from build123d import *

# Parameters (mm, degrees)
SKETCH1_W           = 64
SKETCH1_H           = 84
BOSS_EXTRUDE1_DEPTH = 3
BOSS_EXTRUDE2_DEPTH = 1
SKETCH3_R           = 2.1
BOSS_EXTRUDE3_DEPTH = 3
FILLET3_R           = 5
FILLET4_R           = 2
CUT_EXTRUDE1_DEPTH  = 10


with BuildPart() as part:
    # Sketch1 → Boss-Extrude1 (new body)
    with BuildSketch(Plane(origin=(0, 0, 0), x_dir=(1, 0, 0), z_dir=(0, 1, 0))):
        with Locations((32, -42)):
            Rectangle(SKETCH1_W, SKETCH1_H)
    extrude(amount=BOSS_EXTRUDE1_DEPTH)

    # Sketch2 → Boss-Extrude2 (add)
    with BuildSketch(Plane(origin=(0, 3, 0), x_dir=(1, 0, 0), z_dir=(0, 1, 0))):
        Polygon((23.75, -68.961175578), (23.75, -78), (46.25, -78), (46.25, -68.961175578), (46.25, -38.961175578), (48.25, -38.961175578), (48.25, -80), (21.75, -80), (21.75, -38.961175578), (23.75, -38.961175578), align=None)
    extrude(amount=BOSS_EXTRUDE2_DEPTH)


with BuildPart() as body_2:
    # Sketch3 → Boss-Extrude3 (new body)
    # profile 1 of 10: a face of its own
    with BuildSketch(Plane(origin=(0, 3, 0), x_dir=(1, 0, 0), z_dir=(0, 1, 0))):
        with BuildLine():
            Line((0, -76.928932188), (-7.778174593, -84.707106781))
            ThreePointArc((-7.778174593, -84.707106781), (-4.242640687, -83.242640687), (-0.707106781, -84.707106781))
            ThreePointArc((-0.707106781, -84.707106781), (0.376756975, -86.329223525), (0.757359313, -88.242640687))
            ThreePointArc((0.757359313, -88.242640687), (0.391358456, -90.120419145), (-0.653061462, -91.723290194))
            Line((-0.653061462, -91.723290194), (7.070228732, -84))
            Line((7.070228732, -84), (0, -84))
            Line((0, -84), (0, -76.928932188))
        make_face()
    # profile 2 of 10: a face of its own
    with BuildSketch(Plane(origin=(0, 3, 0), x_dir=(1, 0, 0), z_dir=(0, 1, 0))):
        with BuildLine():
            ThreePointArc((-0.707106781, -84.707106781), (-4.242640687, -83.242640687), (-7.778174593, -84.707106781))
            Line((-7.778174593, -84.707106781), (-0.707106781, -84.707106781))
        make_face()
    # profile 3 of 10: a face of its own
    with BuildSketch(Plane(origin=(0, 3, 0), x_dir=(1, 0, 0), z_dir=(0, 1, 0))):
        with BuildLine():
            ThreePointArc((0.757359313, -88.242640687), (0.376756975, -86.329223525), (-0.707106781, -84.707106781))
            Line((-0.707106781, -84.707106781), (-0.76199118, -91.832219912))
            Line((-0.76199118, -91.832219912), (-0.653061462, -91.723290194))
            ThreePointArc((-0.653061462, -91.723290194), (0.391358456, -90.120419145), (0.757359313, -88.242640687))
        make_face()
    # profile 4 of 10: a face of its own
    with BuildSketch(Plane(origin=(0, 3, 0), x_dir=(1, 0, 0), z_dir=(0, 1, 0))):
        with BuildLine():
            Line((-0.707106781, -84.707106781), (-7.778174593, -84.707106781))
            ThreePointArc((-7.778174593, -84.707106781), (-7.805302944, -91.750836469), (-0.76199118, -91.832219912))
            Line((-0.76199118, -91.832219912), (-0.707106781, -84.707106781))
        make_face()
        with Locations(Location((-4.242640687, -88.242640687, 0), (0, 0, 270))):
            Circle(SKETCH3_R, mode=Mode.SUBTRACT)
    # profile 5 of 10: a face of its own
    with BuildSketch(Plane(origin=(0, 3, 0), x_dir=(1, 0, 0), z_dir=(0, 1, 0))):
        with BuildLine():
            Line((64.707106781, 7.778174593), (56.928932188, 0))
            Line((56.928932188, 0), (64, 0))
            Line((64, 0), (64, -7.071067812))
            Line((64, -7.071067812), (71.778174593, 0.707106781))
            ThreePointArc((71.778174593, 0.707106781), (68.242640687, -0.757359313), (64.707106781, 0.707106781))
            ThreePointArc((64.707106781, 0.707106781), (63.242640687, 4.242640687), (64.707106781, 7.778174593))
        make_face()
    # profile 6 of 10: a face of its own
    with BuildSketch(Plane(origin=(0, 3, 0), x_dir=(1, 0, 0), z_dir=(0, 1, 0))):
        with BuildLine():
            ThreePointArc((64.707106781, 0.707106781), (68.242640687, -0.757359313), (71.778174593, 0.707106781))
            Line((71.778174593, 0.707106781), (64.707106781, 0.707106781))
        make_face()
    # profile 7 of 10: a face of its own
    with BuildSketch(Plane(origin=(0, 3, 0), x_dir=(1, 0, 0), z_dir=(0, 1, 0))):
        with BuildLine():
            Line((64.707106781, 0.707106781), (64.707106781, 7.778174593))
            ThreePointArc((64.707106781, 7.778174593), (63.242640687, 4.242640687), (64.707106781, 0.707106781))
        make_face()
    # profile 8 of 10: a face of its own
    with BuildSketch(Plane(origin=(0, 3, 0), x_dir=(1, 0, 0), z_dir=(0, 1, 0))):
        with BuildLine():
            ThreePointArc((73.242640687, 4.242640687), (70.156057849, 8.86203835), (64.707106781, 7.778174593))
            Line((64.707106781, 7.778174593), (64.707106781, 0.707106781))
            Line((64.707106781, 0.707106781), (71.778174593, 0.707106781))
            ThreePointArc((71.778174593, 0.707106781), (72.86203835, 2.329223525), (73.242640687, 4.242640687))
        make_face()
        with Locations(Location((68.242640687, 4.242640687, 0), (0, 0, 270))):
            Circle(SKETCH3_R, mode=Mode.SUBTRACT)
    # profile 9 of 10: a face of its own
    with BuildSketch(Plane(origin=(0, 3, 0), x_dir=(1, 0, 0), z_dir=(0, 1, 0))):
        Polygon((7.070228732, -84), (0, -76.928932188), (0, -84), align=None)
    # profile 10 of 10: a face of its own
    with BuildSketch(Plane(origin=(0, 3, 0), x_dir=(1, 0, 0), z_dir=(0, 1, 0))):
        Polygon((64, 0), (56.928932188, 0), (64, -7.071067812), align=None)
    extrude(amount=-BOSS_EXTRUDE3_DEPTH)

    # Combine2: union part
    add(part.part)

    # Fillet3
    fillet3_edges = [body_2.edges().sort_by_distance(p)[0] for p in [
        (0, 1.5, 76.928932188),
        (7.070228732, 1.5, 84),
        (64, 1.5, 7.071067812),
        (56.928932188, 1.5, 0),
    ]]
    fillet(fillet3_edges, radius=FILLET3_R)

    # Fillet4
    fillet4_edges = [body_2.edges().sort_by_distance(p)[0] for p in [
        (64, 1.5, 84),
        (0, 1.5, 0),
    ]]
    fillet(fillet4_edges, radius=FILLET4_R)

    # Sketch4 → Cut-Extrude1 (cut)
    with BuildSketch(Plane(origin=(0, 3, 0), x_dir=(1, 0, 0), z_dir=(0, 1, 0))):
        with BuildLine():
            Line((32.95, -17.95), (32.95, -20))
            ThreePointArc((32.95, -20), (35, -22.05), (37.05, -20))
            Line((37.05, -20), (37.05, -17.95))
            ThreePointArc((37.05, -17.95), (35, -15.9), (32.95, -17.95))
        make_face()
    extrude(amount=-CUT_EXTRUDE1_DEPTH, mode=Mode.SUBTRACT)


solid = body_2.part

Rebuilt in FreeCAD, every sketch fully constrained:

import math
import FreeCAD as App
import Part
import Sketcher
from FreeCAD import Vector
Q = App.Units.Quantity


def edges_at(feature, points):
    """Names of the edges that pass closest to the given points."""
    edges = feature.Shape.Edges
    near = lambda p: min(range(len(edges)), key=lambda i: edges[i].distToShape(Part.Vertex(*p))[0])
    return sorted({f"Edge{near(p) + 1}" for p in points})

doc = App.newDocument("Part")
body = doc.addObject("PartDesign::Body", "Body")

# Sketch on XZ plane
sketch1 = doc.addObject("Sketcher::SketchObject", "Sketch")
body.addObject(sketch1)
sketch1.AttachmentSupport = (doc.XZ_Plane, [""])
sketch1.MapMode = "FlatFace"
sketch1.addGeometry([
    Part.LineSegment(Vector(0, 0, 0), Vector(0, 84, 0)),
    Part.LineSegment(Vector(0, 84, 0), Vector(64, 84, 0)),
    Part.LineSegment(Vector(64, 84, 0), Vector(64, 0, 0)),
    Part.LineSegment(Vector(64, 0, 0), Vector(0, 0, 0)),
], False)
sketch1.addConstraint([
    Sketcher.Constraint("Coincident", 0, 2, 1, 1),
    Sketcher.Constraint("Coincident", 1, 2, 2, 1),
    Sketcher.Constraint("Coincident", 2, 2, 3, 1),
    Sketcher.Constraint("Coincident", 3, 2, 0, 1),
    Sketcher.Constraint("Vertical", 0),
    Sketcher.Constraint("Horizontal", 1),
    Sketcher.Constraint("Vertical", 2),
    Sketcher.Constraint("Horizontal", 3),
    Sketcher.Constraint("Coincident", 3, 2, -1, 1),
    Sketcher.Constraint("DistanceX", 1, 1, 1, 2, 64.0),
    Sketcher.Constraint("DistanceY", 0, 1, 0, 2, 84.0),
])
pad1 = doc.addObject("PartDesign::Pad", "Pad")
body.addObject(pad1)
pad1.Profile = sketch1
pad1.Length = 3
pad1.Reversed = True

# Sketch on XZ plane
sketch2 = doc.addObject("Sketcher::SketchObject", "Sketch001")
body.addObject(sketch2)
sketch2.AttachmentSupport = (doc.XZ_Plane, [""])
sketch2.MapMode = "FlatFace"
sketch2.AttachmentOffset = App.Placement(Vector(0, 0, -3), App.Rotation())
sketch2.addGeometry([
    Part.LineSegment(Vector(23.8, 78, 0), Vector(23.8, 39, 0)),  # 0
    Part.LineSegment(Vector(23.8, 39, 0), Vector(21.8, 39, 0)),  # 1
    Part.LineSegment(Vector(21.8, 39, 0), Vector(21.8, 80, 0)),  # 2
    Part.LineSegment(Vector(21.8, 80, 0), Vector(48.2, 80, 0)),  # 3
    Part.LineSegment(Vector(48.2, 80, 0), Vector(48.2, 39, 0)),  # 4
    Part.LineSegment(Vector(48.2, 39, 0), Vector(46.2, 39, 0)),  # 5
    Part.LineSegment(Vector(46.2, 39, 0), Vector(46.2, 78, 0)),  # 6
    Part.LineSegment(Vector(46.2, 78, 0), Vector(23.8, 78, 0)),  # 7
], False)
sketch2.addConstraint([
    Sketcher.Constraint("Coincident", 0, 2, 1, 1),
    Sketcher.Constraint("Coincident", 1, 2, 2, 1),
    Sketcher.Constraint("Coincident", 2, 2, 3, 1),
    Sketcher.Constraint("Coincident", 3, 2, 4, 1),
    Sketcher.Constraint("Coincident", 4, 2, 5, 1),
    Sketcher.Constraint("Coincident", 5, 2, 6, 1),
    Sketcher.Constraint("Coincident", 6, 2, 7, 1),
    Sketcher.Constraint("Coincident", 7, 2, 0, 1),
    Sketcher.Constraint("Vertical", 0),
    Sketcher.Constraint("Horizontal", 1),
    Sketcher.Constraint("Vertical", 2),
    Sketcher.Constraint("Horizontal", 3),
    Sketcher.Constraint("Vertical", 4),
    Sketcher.Constraint("Horizontal", 5),
    Sketcher.Constraint("Vertical", 6),
    Sketcher.Constraint("Horizontal", 7),
    Sketcher.Constraint("Horizontal", 1, 2, 4, 2),
    Sketcher.Constraint("Equal", 1, 5),
    Sketcher.Constraint("DistanceX", 1, 2, 1, 1, 2.0),
    Sketcher.Constraint("DistanceX", 3, 1, 3, 2, 26.5),
    Sketcher.Constraint("DistanceY", -1, 1, 2, 2, 80.0),
    Sketcher.Constraint("DistanceY", -1, 1, 6, 2, 78.0),
    Sketcher.Constraint("DistanceX", -1, 1, 0, 2, 23.75),
    Sketcher.Constraint("DistanceY", 0, 2, 0, 1, 39.038824),
])
pad2 = doc.addObject("PartDesign::Pad", "Pad001")
body.addObject(pad2)
pad2.Profile = sketch2
pad2.Length = 1
pad2.Reversed = True
body2 = doc.addObject("PartDesign::Body", "Body001")
body2.AllowCompound = True

# Sketch on XZ plane
sketch3 = doc.addObject("Sketcher::SketchObject", "Sketch002")
body2.addObject(sketch3)
sketch3.AttachmentSupport = (doc.getObject("XZ_Plane001"), [""])
sketch3.MapMode = "FlatFace"
sketch3.AttachmentOffset = App.Placement(Vector(0, 0, -3), App.Rotation())
sketch3.addGeometry([
    Part.LineSegment(Vector(0, 76.9, 0), Vector(-7.8, 84.7, 0)),  # 0
    Part.ArcOfCircle(Part.Circle(Vector(-4.2, 88.2, 0), Vector(0, 0, 1), 5), math.radians(46), math.radians(225)),  # 1
    Part.LineSegment(Vector(-0.8, 91.8, 0), Vector(7.1, 84, 0)),  # 2
    Part.LineSegment(Vector(7.1, 84, 0), Vector(0, 76.9, 0)),  # 3
    Part.Circle(Vector(-4.2, 88.2, 0), Vector(0, 0, 1), 2.1),  # 4
    Part.LineSegment(Vector(64.7, -7.8, 0), Vector(56.9, 0, 0)),  # 5
    Part.LineSegment(Vector(56.9, 0, 0), Vector(64, 7.1, 0)),  # 6
    Part.LineSegment(Vector(64, 7.1, 0), Vector(71.8, -0.7, 0)),  # 7
    Part.ArcOfCircle(Part.Circle(Vector(68.2, -4.2, 0), Vector(0, 0, 1), 5), math.radians(0), math.radians(45)),  # 8
    Part.ArcOfCircle(Part.Circle(Vector(68.2, -4.2, 0), Vector(0, 0, 1), 5), math.radians(-135), math.radians(0)),  # 9
    Part.Circle(Vector(68.2, -4.2, 0), Vector(0, 0, 1), 2.1),  # 10
], False)
sketch3.addConstraint([
    Sketcher.Constraint("Tangent", 0, 2, 1, 2),
    Sketcher.Constraint("Coincident", 1, 1, 2, 1),
    Sketcher.Constraint("Coincident", 2, 2, 3, 1),
    Sketcher.Constraint("Coincident", 3, 2, 0, 1),
    Sketcher.Constraint("Coincident", 5, 2, 6, 1),
    Sketcher.Constraint("Coincident", 6, 2, 7, 1),
    Sketcher.Constraint("Tangent", 7, 2, 8, 2),
    Sketcher.Constraint("Tangent", 8, 1, 9, 2),
    Sketcher.Constraint("Tangent", 9, 1, 5, 1),
    Sketcher.Constraint("Coincident", 4, 3, 1, 3),
    Sketcher.Constraint("Coincident", 10, 3, 8, 3),
    Sketcher.Constraint("Equal", 1, 8),
    Sketcher.Constraint("Equal", 8, 9),
    Sketcher.Constraint("Equal", 4, 10),
    Sketcher.Constraint("PointOnObject", 3, 2, -2),
    Sketcher.Constraint("PointOnObject", 5, 2, -1),
    Sketcher.Constraint("Parallel", 0, 2),
    Sketcher.Constraint("Parallel", 2, 5),
    Sketcher.Constraint("Perpendicular", 5, 6),
    Sketcher.Constraint("Perpendicular", 6, 7),
    Sketcher.Constraint("Horizontal", 10, 3, 8, 1),
    Sketcher.Constraint("Equal", 0, 5),
    Sketcher.Constraint("Radius", 1, 5.0),
    Sketcher.Constraint("Diameter", 4, 4.2),
    Sketcher.Constraint("Angle", 0, Q("135 deg")),
    Sketcher.Constraint("Distance", 0, 11.0),
    Sketcher.Constraint("DistanceY", -1, 1, 2, 2, 84.0),
    Sketcher.Constraint("DistanceX", -1, 1, 6, 2, 64.0),
    Sketcher.Constraint("Distance", 2, 11.076432),
    Sketcher.Constraint("DistanceY", -1, 1, 1, 3, 88.242641),
])
pad3 = doc.addObject("PartDesign::Pad", "Pad002")
body2.addObject(pad3)
pad3.Profile = sketch3
pad3.Length = 3
doc.recompute()

boolean = doc.addObject("PartDesign::Boolean", "Boolean")
body2.addObject(boolean)
boolean.Type = "Fuse"
boolean.addObjects([body])
doc.recompute()

fillet = doc.addObject("PartDesign::Fillet", "Fillet")
body2.addObject(fillet)
fillet.Base = (boolean, edges_at(boolean, [
    (0, 1.5, 76.929),
    (7.07, 1.5, 84),
    (64, 1.5, 7.071),
    (56.929, 1.5, 0),
]))
fillet.Radius = 5
doc.recompute()

fillet2 = doc.addObject("PartDesign::Fillet", "Fillet001")
body2.addObject(fillet2)
fillet2.Base = (fillet, edges_at(fillet, [(64, 1.5, 84), (0, 1.5, 0)]))
fillet2.Radius = 2

# Sketch on XZ plane
sketch4 = doc.addObject("Sketcher::SketchObject", "Sketch003")
body2.addObject(sketch4)
sketch4.AttachmentSupport = (doc.getObject("XZ_Plane001"), [""])
sketch4.MapMode = "FlatFace"
sketch4.AttachmentOffset = App.Placement(Vector(0, 0, -3), App.Rotation())
sketch4.addGeometry([
    Part.LineSegment(Vector(33, 17.9, 0), Vector(33, 20, 0)),
    Part.ArcOfCircle(Part.Circle(Vector(35, 20, 0), Vector(0, 0, 1), 2), math.radians(0), math.radians(180)),
    Part.LineSegment(Vector(37, 20, 0), Vector(37, 17.9, 0)),
    Part.ArcOfCircle(Part.Circle(Vector(35, 17.9, 0), Vector(0, 0, 1), 2), math.radians(180), math.radians(360)),
], False)
sketch4.addConstraint([
    Sketcher.Constraint("Tangent", 0, 2, 1, 2),
    Sketcher.Constraint("Tangent", 1, 1, 2, 1),
    Sketcher.Constraint("Tangent", 2, 2, 3, 2),
    Sketcher.Constraint("Tangent", 3, 1, 0, 1),
    Sketcher.Constraint("Vertical", 0),
    Sketcher.Constraint("Vertical", 2),
    Sketcher.Constraint("Radius", 1, 2.05),
    Sketcher.Constraint("DistanceX", -1, 1, 1, 3, 35.0),
    Sketcher.Constraint("DistanceY", -1, 1, 1, 3, 20.0),
    Sketcher.Constraint("DistanceY", 0, 1, 0, 2, 2.05),
])
pocket1 = doc.addObject("PartDesign::Pocket", "Pocket")
body2.addObject(pocket1)
pocket1.Profile = sketch4
pocket1.Length = 10
pocket1.Reversed = True

doc.recompute()
